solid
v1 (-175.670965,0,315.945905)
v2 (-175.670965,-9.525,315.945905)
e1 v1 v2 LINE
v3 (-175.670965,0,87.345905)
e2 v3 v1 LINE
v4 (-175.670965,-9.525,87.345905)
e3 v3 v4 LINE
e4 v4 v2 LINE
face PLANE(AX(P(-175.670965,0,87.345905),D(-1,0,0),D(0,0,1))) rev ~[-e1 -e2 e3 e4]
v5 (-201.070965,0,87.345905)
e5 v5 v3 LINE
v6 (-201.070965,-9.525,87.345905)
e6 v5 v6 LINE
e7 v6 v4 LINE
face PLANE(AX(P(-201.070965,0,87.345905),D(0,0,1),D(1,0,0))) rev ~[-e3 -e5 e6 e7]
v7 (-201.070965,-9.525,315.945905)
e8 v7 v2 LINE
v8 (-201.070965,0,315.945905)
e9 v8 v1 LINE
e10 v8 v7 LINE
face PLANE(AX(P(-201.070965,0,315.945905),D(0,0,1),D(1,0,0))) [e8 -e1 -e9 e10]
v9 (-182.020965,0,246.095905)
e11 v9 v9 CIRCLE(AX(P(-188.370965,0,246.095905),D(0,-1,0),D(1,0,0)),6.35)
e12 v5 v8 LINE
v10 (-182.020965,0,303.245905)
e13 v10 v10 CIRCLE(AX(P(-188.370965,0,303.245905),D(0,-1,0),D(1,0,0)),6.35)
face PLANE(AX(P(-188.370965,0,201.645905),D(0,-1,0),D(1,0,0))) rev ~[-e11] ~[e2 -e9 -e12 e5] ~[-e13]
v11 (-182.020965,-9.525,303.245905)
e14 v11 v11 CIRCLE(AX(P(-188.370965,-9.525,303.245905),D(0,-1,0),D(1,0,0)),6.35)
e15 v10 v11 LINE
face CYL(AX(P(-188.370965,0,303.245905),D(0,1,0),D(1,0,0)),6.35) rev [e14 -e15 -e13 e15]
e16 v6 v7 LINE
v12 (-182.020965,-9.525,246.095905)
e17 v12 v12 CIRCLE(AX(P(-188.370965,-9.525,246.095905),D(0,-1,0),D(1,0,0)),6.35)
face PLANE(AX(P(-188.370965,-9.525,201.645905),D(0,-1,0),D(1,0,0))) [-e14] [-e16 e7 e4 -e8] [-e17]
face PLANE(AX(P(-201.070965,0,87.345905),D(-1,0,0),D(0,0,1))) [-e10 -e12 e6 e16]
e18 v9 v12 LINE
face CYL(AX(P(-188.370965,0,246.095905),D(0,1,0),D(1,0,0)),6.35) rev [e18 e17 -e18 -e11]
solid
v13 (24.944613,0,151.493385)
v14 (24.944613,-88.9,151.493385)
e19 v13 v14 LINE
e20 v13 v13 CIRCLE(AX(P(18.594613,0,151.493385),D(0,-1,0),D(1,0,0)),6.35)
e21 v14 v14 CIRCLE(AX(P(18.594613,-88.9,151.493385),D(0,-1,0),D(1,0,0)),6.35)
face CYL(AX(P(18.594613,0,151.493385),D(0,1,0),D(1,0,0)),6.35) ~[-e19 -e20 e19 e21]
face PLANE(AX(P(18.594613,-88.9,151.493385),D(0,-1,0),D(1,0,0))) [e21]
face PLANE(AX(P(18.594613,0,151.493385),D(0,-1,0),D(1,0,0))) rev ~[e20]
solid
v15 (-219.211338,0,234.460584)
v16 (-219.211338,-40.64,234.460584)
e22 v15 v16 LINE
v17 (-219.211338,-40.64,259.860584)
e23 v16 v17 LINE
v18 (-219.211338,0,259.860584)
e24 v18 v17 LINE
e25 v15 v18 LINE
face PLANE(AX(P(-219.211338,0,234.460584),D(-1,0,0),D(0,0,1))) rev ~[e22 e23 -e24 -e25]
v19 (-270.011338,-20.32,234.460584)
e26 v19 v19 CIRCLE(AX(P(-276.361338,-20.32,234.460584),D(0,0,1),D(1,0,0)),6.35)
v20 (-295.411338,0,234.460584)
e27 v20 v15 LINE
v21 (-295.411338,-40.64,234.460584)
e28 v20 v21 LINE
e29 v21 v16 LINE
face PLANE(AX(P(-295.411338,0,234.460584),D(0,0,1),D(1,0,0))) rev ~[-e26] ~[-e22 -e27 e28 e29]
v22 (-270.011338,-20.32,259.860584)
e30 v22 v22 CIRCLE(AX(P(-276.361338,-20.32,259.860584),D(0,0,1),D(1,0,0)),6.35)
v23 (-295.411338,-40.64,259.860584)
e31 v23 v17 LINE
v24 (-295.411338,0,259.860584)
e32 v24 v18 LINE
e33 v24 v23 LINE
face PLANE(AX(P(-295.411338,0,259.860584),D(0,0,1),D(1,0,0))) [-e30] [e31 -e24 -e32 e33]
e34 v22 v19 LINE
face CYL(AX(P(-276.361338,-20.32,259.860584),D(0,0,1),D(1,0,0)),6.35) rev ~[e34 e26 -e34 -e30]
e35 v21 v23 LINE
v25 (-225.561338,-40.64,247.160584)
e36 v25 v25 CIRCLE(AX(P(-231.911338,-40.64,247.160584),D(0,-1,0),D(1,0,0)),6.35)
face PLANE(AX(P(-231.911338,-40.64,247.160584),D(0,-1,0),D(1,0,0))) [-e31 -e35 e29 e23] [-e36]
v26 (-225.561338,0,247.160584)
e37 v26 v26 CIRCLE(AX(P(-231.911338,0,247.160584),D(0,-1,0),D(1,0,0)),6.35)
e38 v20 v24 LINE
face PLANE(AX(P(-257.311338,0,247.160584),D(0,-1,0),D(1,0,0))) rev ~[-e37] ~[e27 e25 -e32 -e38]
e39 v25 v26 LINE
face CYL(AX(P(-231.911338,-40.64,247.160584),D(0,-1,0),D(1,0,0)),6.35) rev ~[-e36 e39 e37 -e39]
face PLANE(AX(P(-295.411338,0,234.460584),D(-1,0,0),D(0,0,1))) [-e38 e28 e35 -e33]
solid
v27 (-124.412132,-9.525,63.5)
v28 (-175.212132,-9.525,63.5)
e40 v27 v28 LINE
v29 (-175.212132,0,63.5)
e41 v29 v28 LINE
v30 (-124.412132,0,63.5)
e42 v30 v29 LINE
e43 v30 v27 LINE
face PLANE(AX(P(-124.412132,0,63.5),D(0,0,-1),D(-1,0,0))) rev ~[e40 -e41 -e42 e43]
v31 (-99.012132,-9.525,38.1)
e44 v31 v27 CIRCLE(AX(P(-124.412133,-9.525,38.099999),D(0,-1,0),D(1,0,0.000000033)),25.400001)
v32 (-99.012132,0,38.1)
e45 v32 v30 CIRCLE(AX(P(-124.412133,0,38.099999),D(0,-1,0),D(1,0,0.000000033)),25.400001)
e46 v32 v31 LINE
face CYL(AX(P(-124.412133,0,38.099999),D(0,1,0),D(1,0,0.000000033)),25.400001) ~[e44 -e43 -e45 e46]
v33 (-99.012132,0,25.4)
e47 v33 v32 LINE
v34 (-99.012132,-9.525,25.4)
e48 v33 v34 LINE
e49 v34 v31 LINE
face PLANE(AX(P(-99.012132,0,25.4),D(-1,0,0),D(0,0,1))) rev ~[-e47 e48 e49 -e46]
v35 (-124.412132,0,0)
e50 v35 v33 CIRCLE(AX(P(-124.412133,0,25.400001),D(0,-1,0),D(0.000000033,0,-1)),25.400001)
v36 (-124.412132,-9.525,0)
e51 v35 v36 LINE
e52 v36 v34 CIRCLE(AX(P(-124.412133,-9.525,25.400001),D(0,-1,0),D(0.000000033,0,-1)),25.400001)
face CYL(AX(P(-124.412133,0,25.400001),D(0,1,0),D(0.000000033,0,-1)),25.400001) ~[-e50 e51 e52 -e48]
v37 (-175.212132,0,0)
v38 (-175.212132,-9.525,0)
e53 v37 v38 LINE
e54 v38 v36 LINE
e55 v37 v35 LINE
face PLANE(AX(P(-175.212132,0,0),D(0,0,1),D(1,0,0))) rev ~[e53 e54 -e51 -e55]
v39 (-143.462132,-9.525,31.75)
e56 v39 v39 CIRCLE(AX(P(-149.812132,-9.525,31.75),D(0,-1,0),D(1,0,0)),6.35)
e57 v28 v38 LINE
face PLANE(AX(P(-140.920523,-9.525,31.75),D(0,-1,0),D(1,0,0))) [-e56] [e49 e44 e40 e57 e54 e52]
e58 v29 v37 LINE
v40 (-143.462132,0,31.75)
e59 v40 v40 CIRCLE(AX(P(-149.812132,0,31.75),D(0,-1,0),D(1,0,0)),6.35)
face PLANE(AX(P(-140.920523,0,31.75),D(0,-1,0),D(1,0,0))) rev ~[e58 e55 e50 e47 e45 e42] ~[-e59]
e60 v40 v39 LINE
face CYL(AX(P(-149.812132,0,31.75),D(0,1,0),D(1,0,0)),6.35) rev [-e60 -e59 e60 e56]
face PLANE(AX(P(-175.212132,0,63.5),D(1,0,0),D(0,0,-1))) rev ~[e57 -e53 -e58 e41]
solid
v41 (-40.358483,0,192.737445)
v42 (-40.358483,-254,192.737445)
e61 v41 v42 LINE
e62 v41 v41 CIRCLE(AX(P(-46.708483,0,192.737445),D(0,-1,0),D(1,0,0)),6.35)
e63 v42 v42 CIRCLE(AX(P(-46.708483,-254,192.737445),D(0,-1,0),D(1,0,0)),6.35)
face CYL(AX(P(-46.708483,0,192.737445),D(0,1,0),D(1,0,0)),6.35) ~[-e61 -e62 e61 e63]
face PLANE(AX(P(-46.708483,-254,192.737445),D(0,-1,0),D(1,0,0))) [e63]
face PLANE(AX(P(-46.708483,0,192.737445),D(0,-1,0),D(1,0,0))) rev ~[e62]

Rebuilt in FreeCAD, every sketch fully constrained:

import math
import FreeCAD as App
import Part
import Sketcher
Q = App.Units.Quantity


def add_polygon(sketch, points):
    """Adds a closed chain of lines whose ends are joined by coincident constraints."""
    first, n = sketch.GeometryCount, len(points)
    for a, b in zip(points, points[1:] + points[:1]):
        sketch.addGeometry(Part.LineSegment(App.Vector(*a, 0), App.Vector(*b, 0)), False)
    for i in range(n):
        sketch.addConstraint(Sketcher.Constraint("Coincident", first + i, 2, first + (i + 1) % n, 1))

doc = App.newDocument("Part")
body = doc.addObject("PartDesign::Body", "Body")

sketch1 = body.newObject("Sketcher::SketchObject", "Sketch")
sketch1.AttachmentSupport = (doc.getObject("XZ_Plane"), [""])
sketch1.MapMode = "FlatFace"
add_polygon(sketch1, [(-201.070965, 315.945905), (-201.070965, 87.345905), (-175.670965, 87.345905), (-175.670965, 315.945905)])
sketch1.addGeometry(Part.Circle(App.Vector(-188.370965, 246.095905, 0), App.Vector(0, 0, 1), 6.35), False)
sketch1.addGeometry(Part.Circle(App.Vector(-188.370965, 303.245905, 0), App.Vector(0, 0, 1), 6.35), False)
sketch1.addConstraint(Sketcher.Constraint("Vertical", 0))
sketch1.addConstraint(Sketcher.Constraint("Horizontal", 1))
sketch1.addConstraint(Sketcher.Constraint("Vertical", 2))
sketch1.addConstraint(Sketcher.Constraint("Horizontal", 3))
sketch1.addConstraint(Sketcher.Constraint("Equal", 4, 5))
sketch1.addConstraint(Sketcher.Constraint("Vertical", 4, 3, 5, 3))
sketch1.addConstraint(Sketcher.Constraint("Diameter", 4, Q("0.5 in")))
sketch1.addConstraint(Sketcher.Constraint("DistanceX", 1, 1, 1, 2, Q("1 in")))
sketch1.addConstraint(Sketcher.Constraint("DistanceY", 0, 2, 0, 1, Q("9 in")))
sketch1.addConstraint(Sketcher.Constraint("DistanceX", 0, 2, 4, 3, Q("0.5 in")))
sketch1.addConstraint(Sketcher.Constraint("DistanceY", 0, 2, 5, 3, Q("8.5 in")))
sketch1.addConstraint(Sketcher.Constraint("DistanceY", 4, 3, 5, 3, Q("2.25 in")))
sketch1.addConstraint(Sketcher.Constraint("DistanceX", 4, 3, -1, 1, Q("188.370965 mm")))
sketch1.addConstraint(Sketcher.Constraint("DistanceY", -1, 1, 4, 3, Q("246.095905 mm")))
pad1 = body.newObject("PartDesign::Pad", "Pad")
pad1.Profile = sketch1
pad1.Length = Q("0.375 in")
body2 = doc.addObject("PartDesign::Body", "Body001")

sketch2 = body2.newObject("Sketcher::SketchObject", "Sketch001")
sketch2.AttachmentSupport = (doc.getObject("XZ_Plane001"), [""])
sketch2.MapMode = "FlatFace"
add_polygon(sketch2, [(-295.411338, 259.860584), (-295.411338, 234.460584), (-219.211338, 234.460584), (-219.211338, 259.860584)])
sketch2.addConstraint(Sketcher.Constraint("Vertical", 0))
sketch2.addConstraint(Sketcher.Constraint("Horizontal", 1))
sketch2.addConstraint(Sketcher.Constraint("Vertical", 2))
sketch2.addConstraint(Sketcher.Constraint("Horizontal", 3))
sketch2.addConstraint(Sketcher.Constraint("DistanceX", 1, 1, 1, 2, Q("3 in")))
sketch2.addConstraint(Sketcher.Constraint("DistanceY", 0, 2, 0, 1, Q("1 in")))
sketch2.addConstraint(Sketcher.Constraint("DistanceX", 0, 2, -1, 1, Q("295.411338 mm")))
sketch2.addConstraint(Sketcher.Constraint("DistanceY", -1, 1, 0, 2, Q("234.460584 mm")))
pad2 = body2.newObject("PartDesign::Pad", "Pad001")
pad2.Profile = sketch2
pad2.Length = Q("1.6 in")

sketch3 = body2.newObject("Sketcher::SketchObject", "Sketch002")
sketch3.AttachmentSupport = (doc.getObject("XZ_Plane001"), [""])
sketch3.MapMode = "FlatFace"
sketch3.AttachmentOffset = App.Placement(App.Vector(0, 0, 1.6 * 25.4), App.Rotation())
sketch3.addGeometry(Part.Circle(App.Vector(-231.911338, 247.160584, 0), App.Vector(0, 0, 1), 6.35), False)
sketch3.addConstraint(Sketcher.Constraint("Diameter", 0, Q("0.5 in")))
sketch3.addConstraint(Sketcher.Constraint("DistanceX", 0, 3, -1, 1, Q("231.911338 mm")))
sketch3.addConstraint(Sketcher.Constraint("DistanceY", -1, 1, 0, 3, Q("247.160584 mm")))
pad3 = body2.newObject("PartDesign::Pad", "Pad002")
pad3.Profile = sketch3
pad3.Length = Q("2.272 in")
pad3.Reversed = True

sketch4 = body2.newObject("Sketcher::SketchObject", "Sketch003")
sketch4.AttachmentSupport = (doc.getObject("XZ_Plane001"), [""])
sketch4.MapMode = "FlatFace"
sketch4.AttachmentOffset = App.Placement(App.Vector(0, 0, 1.6 * 25.4), App.Rotation())
sketch4.addGeometry(Part.Circle(App.Vector(-231.911338, 247.160584, 0), App.Vector(0, 0, 1), 6.35), False)
sketch4.addConstraint(Sketcher.Constraint("Diameter", 0, Q("0.5 in")))
sketch4.addConstraint(Sketcher.Constraint("DistanceX", 0, 3, -1, 1, Q("231.911338 mm")))
sketch4.addConstraint(Sketcher.Constraint("DistanceY", -1, 1, 0, 3, Q("247.160584 mm")))
pocket1 = body2.newObject("PartDesign::Pocket", "Pocket")
pocket1.Profile = sketch4
pocket1.Length = Q("2.272 in")

sketch5 = body2.newObject("Sketcher::SketchObject", "Sketch004")
sketch5.AttachmentSupport = (doc.getObject("XY_Plane001"), [""])
sketch5.MapMode = "FlatFace"
sketch5.AttachmentOffset = App.Placement(App.Vector(0, 0, 259.860584), App.Rotation())
sketch5.addGeometry(Part.Circle(App.Vector(-276.361338, -20.32, 0), App.Vector(0, 0, 1), 6.35), False)
sketch5.addConstraint(Sketcher.Constraint("Diameter", 0, Q("0.5 in")))
sketch5.addConstraint(Sketcher.Constraint("DistanceY", 0, 3, -1, 1, Q("0.8 in")))
sketch5.addConstraint(Sketcher.Constraint("DistanceX", 0, 3, -1, 1, Q("276.361338 mm")))
pocket2 = body2.newObject("PartDesign::Pocket", "Pocket001")
pocket2.Profile = sketch5
pocket2.Length = Q("2 in")
body3 = doc.addObject("PartDesign::Body", "Body002")

sketch6 = body3.newObject("Sketcher::SketchObject", "Sketch005")
sketch6.AttachmentSupport = (doc.getObject("XZ_Plane002"), [""])
sketch6.MapMode = "FlatFace"
sketch6.addGeometry(Part.Circle(App.Vector(-46.708483, 192.737445, 0), App.Vector(0, 0, 1), 6.35), False)
sketch6.addConstraint(Sketcher.Constraint("Diameter", 0, Q("0.5 in")))
sketch6.addConstraint(Sketcher.Constraint("DistanceX", 0, 3, -1, 1, Q("46.708483 mm")))
sketch6.addConstraint(Sketcher.Constraint("DistanceY", -1, 1, 0, 3, Q("192.737445 mm")))
pad4 = body3.newObject("PartDesign::Pad", "Pad003")
pad4.Profile = sketch6
pad4.Length = Q("10 in")
body4 = doc.addObject("PartDesign::Body", "Body003")

sketch7 = body4.newObject("Sketcher::SketchObject", "Sketch006")
sketch7.AttachmentSupport = (doc.getObject("XZ_Plane003"), [""])
sketch7.MapMode = "FlatFace"
sketch7.addGeometry(Part.Circle(App.Vector(18.594613, 151.493385, 0), App.Vector(0, 0, 1), 6.35), False)
sketch7.addConstraint(Sketcher.Constraint("Diameter", 0, Q("0.5 in")))
sketch7.addConstraint(Sketcher.Constraint("DistanceX", -1, 1, 0, 3, Q("18.594613 mm")))
sketch7.addConstraint(Sketcher.Constraint("DistanceY", -1, 1, 0, 3, Q("151.493385 mm")))
pad5 = body4.newObject("PartDesign::Pad", "Pad004")
pad5.Profile = sketch7
pad5.Length = Q("3.5 in")
body5 = doc.addObject("PartDesign::Body", "Body004")

sketch8 = body5.newObject("Sketcher::SketchObject", "Sketch007")
sketch8.AttachmentSupport = (doc.getObject("XZ_Plane004"), [""])
sketch8.MapMode = "FlatFace"
sketch8.addGeometry(Part.LineSegment(App.Vector(-124.412132, 63.5, 0), App.Vector(-175.212132, 63.5, 0)), False)
sketch8.addGeometry(Part.LineSegment(App.Vector(-175.212132, 63.5, 0), App.Vector(-175.212132, 0, 0)), False)
sketch8.addGeometry(Part.LineSegment(App.Vector(-175.212132, 0, 0), App.Vector(-124.412132, 0, 0)), False)
sketch8.addGeometry(Part.ArcOfCircle(Part.Circle(App.Vector(-124.412133, 25.400001, 0), App.Vector(0, 0, 1), 25.400001), math.radians(-89.999998), math.radians(-0.000002)), False)
sketch8.addGeometry(Part.LineSegment(App.Vector(-99.012132, 25.4, 0), App.Vector(-99.012132, 38.1, 0)), False)
sketch8.addGeometry(Part.ArcOfCircle(Part.Circle(App.Vector(-124.412133, 38.099999, 0), App.Vector(0, 0, 1), 25.400001), math.radians(0.000002), math.radians(89.999998)), False)
sketch8.addGeometry(Part.Circle(App.Vector(-149.812132, 31.75, 0), App.Vector(0, 0, 1), 6.35), False)
sketch8.addConstraint(Sketcher.Constraint("Coincident", 0, 2, 1, 1))
sketch8.addConstraint(Sketcher.Constraint("Coincident", 1, 2, 2, 1))
sketch8.addConstraint(Sketcher.Constraint("Tangent", 2, 2, 3, 1))
sketch8.addConstraint(Sketcher.Constraint("Tangent", 3, 2, 4, 1))
sketch8.addConstraint(Sketcher.Constraint("Tangent", 4, 2, 5, 1))
sketch8.addConstraint(Sketcher.Constraint("Tangent", 5, 2, 0, 1))
sketch8.addConstraint(Sketcher.Constraint("Horizontal", 0))
sketch8.addConstraint(Sketcher.Constraint("Vertical", 1))
sketch8.addConstraint(Sketcher.Constraint("Horizontal", 2))
sketch8.addConstraint(Sketcher.Constraint("Vertical", 4))
sketch8.addConstraint(Sketcher.Constraint("Equal", 3, 5))
sketch8.addConstraint(Sketcher.Constraint("PointOnObject", 1, 2, -1))
sketch8.addConstraint(Sketcher.Constraint("Radius", 3, Q("1 in")))
sketch8.addConstraint(Sketcher.Constraint("Diameter", 6, Q("0.5 in")))
sketch8.addConstraint(Sketcher.Constraint("DistanceX", 0, 2, 0, 1, Q("2 in")))
sketch8.addConstraint(Sketcher.Constraint("DistanceY", 1, 2, 1, 1, Q("2.5 in")))
sketch8.addConstraint(Sketcher.Constraint("DistanceX", 6, 3, 3, 3, Q("1 in")))
sketch8.addConstraint(Sketcher.Constraint("DistanceY", -1, 1, 6, 3, Q("1.25 in")))
sketch8.addConstraint(Sketcher.Constraint("DistanceX", 6, 3, -1, 1, Q("149.812132 mm")))
pad6 = body5.newObject("PartDesign::Pad", "Pad005")
pad6.Profile = sketch8
pad6.Length = Q("0.375 in")

doc.recompute()
